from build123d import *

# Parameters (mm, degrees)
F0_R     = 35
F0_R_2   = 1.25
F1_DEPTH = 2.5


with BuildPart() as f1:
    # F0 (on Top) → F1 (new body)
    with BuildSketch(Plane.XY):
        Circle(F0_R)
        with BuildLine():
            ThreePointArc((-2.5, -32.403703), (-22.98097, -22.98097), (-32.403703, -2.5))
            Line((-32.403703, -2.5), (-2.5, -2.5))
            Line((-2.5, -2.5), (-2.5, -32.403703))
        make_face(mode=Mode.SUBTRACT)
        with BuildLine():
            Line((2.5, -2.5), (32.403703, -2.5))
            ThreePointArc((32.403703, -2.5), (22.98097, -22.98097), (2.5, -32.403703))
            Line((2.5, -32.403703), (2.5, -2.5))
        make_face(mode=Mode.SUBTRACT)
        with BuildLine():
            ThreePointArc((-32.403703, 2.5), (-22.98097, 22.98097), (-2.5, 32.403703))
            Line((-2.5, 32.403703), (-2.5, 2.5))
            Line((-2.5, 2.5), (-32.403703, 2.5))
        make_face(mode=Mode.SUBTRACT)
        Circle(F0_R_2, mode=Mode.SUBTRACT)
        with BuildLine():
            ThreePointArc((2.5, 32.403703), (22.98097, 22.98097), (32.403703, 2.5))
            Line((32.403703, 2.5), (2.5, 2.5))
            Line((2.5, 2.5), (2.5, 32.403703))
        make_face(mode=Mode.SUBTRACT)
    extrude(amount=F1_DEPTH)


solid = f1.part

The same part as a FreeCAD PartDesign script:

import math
import FreeCAD as App
import Part
import Sketcher
from FreeCAD import Vector
Q = App.Units.Quantity

doc = App.newDocument("Part")
body = doc.addObject("PartDesign::Body", "Body")

sketch1 = body.newObject("Sketcher::SketchObject", "Sketch")
sketch1.AttachmentSupport = (doc.getObject("XY_Plane"), [""])
sketch1.MapMode = "FlatFace"
sketch1.addGeometry([
    Part.Circle(Vector(0, 0, 0), Vector(0, 0, 1), 35),
    Part.LineSegment(Vector(-2.5, -2.5, 0), Vector(-2.5, -32.4, 0)),
    Part.ArcOfCircle(Part.Circle(Vector(0, 0, 0), Vector(0, 0, 1), 32.5), math.radians(-176), math.radians(-94)),
    Part.LineSegment(Vector(-32.4, -2.5, 0), Vector(-2.5, -2.5, 0)),
    Part.LineSegment(Vector(2.5, -32.4, 0), Vector(2.5, -2.5, 0)),
    Part.LineSegment(Vector(2.5, -2.5, 0), Vector(32.4, -2.5, 0)),
    Part.ArcOfCircle(Part.Circle(Vector(0, 0, 0), Vector(0, 0, 1), 32.5), math.radians(-86), math.radians(-4)),
    Part.LineSegment(Vector(-2.5, 2.5, 0), Vector(-32.4, 2.5, 0)),
    Part.ArcOfCircle(Part.Circle(Vector(0, 0, 0), Vector(0, 0, 1), 32.5), math.radians(94), math.radians(176)),
    Part.LineSegment(Vector(-2.5, 32.4, 0), Vector(-2.5, 2.5, 0)),
    Part.Circle(Vector(0, 0, 0), Vector(0, 0, 1), 1.2),
    Part.LineSegment(Vector(2.5, 2.5, 0), Vector(2.5, 32.4, 0)),
    Part.ArcOfCircle(Part.Circle(Vector(0, 0, 0), Vector(0, 0, 1), 32.5), math.radians(4), math.radians(86)),
    Part.LineSegment(Vector(32.4, 2.5, 0), Vector(2.5, 2.5, 0)),
], False)
sketch1.addConstraint([
    Sketcher.Constraint("Coincident", 1, 2, 2, 2),
    Sketcher.Constraint("Coincident", 2, 1, 3, 1),
    Sketcher.Constraint("Coincident", 3, 2, 1, 1),
    Sketcher.Constraint("Coincident", 4, 2, 5, 1),
    Sketcher.Constraint("Coincident", 5, 2, 6, 2),
    Sketcher.Constraint("Coincident", 6, 1, 4, 1),
    Sketcher.Constraint("Coincident", 7, 2, 8, 2),
    Sketcher.Constraint("Coincident", 8, 1, 9, 1),
    Sketcher.Constraint("Coincident", 9, 2, 7, 1),
    Sketcher.Constraint("Coincident", 11, 2, 12, 2),
    Sketcher.Constraint("Coincident", 12, 1, 13, 1),
    Sketcher.Constraint("Coincident", 13, 2, 11, 1),
    Sketcher.Constraint("Vertical", 1),
    Sketcher.Constraint("Horizontal", 3),
    Sketcher.Constraint("Vertical", 4),
    Sketcher.Constraint("Horizontal", 5),
    Sketcher.Constraint("Horizontal", 7),
    Sketcher.Constraint("Vertical", 9),
    Sketcher.Constraint("Vertical", 11),
    Sketcher.Constraint("Horizontal", 13),
    Sketcher.Constraint("Coincident", 0, 3, -1, 1),
    Sketcher.Constraint("Coincident", 2, 3, -1, 1),
    Sketcher.Constraint("Coincident", 6, 3, -1, 1),
    Sketcher.Constraint("Coincident", 8, 3, -1, 1),
    Sketcher.Constraint("Coincident", 10, 3, -1, 1),
    Sketcher.Constraint("Coincident", 12, 3, -1, 1),
    Sketcher.Constraint("Equal", 2, 6),
    Sketcher.Constraint("Equal", 6, 8),
    Sketcher.Constraint("Equal", 8, 12),
    Sketcher.Constraint("Symmetric", 4, 2, 9, 2, -1, 1),
    Sketcher.Constraint("Symmetric", 3, 2, 13, 2, -1, 1),
    Sketcher.Constraint("Symmetric", 3, 2, 4, 2, -2),
    Sketcher.Constraint("Equal", 13, 1),
    Sketcher.Constraint("Diameter", 0, Q("70 mm")),
    Sketcher.Constraint("Diameter", 10, Q("2.5 mm")),
    Sketcher.Constraint("Radius", 2, Q("32.5 mm")),
    Sketcher.Constraint("DistanceX", 1, 2, 6, 1, Q("5 mm")),
])
pad1 = body.newObject("PartDesign::Pad", "Pad")
pad1.Profile = sketch1
pad1.Length = 2.5

doc.recompute()
